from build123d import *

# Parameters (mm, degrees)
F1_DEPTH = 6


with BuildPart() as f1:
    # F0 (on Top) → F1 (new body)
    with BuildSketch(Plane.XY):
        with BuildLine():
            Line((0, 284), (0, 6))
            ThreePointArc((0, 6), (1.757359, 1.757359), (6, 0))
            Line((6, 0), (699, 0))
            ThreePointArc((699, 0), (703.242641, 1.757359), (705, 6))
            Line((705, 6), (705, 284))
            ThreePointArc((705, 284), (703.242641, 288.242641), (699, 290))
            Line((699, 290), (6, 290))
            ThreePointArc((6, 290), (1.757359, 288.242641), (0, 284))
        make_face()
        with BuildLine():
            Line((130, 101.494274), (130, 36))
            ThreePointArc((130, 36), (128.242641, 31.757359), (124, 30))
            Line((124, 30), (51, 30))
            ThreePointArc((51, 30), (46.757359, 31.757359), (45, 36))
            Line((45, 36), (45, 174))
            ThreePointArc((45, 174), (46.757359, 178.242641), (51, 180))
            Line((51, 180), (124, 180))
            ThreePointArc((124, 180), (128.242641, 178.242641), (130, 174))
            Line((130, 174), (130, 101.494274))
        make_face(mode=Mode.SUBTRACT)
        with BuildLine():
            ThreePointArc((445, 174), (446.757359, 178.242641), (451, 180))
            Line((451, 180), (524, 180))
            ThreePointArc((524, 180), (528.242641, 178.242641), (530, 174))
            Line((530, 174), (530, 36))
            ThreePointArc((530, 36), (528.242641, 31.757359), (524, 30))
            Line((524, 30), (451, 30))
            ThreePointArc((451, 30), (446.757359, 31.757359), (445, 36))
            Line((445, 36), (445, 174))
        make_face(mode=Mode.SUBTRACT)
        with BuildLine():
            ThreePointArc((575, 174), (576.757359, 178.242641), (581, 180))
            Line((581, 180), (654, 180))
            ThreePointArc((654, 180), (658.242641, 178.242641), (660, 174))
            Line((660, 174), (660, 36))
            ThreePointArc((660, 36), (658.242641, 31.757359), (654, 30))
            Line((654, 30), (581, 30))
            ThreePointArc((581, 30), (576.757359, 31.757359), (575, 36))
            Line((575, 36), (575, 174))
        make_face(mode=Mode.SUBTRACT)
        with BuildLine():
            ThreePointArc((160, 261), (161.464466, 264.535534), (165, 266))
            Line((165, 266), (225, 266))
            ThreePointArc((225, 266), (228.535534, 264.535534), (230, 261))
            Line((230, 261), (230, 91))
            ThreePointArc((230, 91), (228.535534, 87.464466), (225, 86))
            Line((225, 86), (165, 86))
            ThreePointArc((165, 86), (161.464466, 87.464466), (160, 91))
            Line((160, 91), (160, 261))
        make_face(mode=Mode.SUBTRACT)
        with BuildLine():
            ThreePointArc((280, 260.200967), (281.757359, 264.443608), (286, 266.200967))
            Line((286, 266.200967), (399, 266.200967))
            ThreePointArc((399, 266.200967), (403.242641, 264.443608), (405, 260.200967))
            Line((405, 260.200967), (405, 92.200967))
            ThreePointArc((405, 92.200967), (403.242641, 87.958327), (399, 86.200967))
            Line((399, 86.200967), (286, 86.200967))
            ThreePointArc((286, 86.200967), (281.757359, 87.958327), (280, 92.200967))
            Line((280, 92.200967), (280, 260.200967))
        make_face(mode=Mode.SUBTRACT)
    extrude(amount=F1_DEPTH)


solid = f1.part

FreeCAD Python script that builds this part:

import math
import FreeCAD as App
import Part
import Sketcher
from FreeCAD import Vector
Q = App.Units.Quantity

doc = App.newDocument("Part")
params = doc.addObject("Spreadsheet::Sheet", "Params")
for row, (alias, value) in enumerate([
    ("sketch1_radius", "5.999999 mm"),
    ("sketch1_radius2", "5 mm"),
    ("sketch1_width", "693 mm"),
    ("sketch1_width2", "73 mm"),
    ("sketch1_width3", "60 mm"),
    ("pad1_length", "6 mm"),
], start=1):
    params.set(f"A{row}", alias)
    params.set(f"B{row}", "=" + value)
    params.setAlias(f"B{row}", alias)

body = doc.addObject("PartDesign::Body", "Body")

sketch1 = doc.addObject("Sketcher::SketchObject", "Sketch")
body.addObject(sketch1)
sketch1.AttachmentSupport = (doc.XY_Plane, [""])
sketch1.MapMode = "FlatFace"
sketch1.addGeometry(Part.LineSegment(Vector(0, 284, 0), Vector(0, 6, 0)), False)
sketch1.addGeometry(Part.ArcOfCircle(Part.Circle(Vector(6, 6, 0), Vector(0, 0, 1), 6), math.radians(180), math.radians(270)), False)
sketch1.addGeometry(Part.LineSegment(Vector(6, 0, 0), Vector(699, 0, 0)), False)
sketch1.addGeometry(Part.ArcOfCircle(Part.Circle(Vector(699, 6, 0), Vector(0, 0, 1), 6), math.radians(-90), math.radians(0)), False)
sketch1.addGeometry(Part.LineSegment(Vector(705, 6, 0), Vector(705, 284, 0)), False)
sketch1.addGeometry(Part.ArcOfCircle(Part.Circle(Vector(699, 284, 0), Vector(0, 0, 1), 6), math.radians(0), math.radians(90)), False)
sketch1.addGeometry(Part.LineSegment(Vector(699, 290, 0), Vector(6, 290, 0)), False)
sketch1.addGeometry(Part.ArcOfCircle(Part.Circle(Vector(6, 284, 0), Vector(0, 0, 1), 6), math.radians(90), math.radians(180)), False)
sketch1.addGeometry(Part.LineSegment(Vector(130, 174, 0), Vector(130, 36, 0)), False)
sketch1.addGeometry(Part.ArcOfCircle(Part.Circle(Vector(124, 36, 0), Vector(0, 0, 1), 6), math.radians(-90), math.radians(0)), False)
sketch1.addGeometry(Part.LineSegment(Vector(124, 30, 0), Vector(51, 30, 0)), False)
sketch1.addGeometry(Part.ArcOfCircle(Part.Circle(Vector(51, 36, 0), Vector(0, 0, 1), 6), math.radians(180), math.radians(270)), False)
sketch1.addGeometry(Part.LineSegment(Vector(45, 36, 0), Vector(45, 174, 0)), False)
sketch1.addGeometry(Part.ArcOfCircle(Part.Circle(Vector(51, 174, 0), Vector(0, 0, 1), 6), math.radians(90), math.radians(180)), False)
sketch1.addGeometry(Part.LineSegment(Vector(51, 180, 0), Vector(124, 180, 0)), False)
sketch1.addGeometry(Part.ArcOfCircle(Part.Circle(Vector(124, 174, 0), Vector(0, 0, 1), 6), math.radians(0), math.radians(90)), False)
sketch1.addGeometry(Part.LineSegment(Vector(445, 36, 0), Vector(445, 174, 0)), False)
sketch1.addGeometry(Part.ArcOfCircle(Part.Circle(Vector(451, 174, 0), Vector(0, 0, 1), 6), math.radians(90), math.radians(180)), False)
sketch1.addGeometry(Part.LineSegment(Vector(451, 180, 0), Vector(524, 180, 0)), False)
sketch1.addGeometry(Part.ArcOfCircle(Part.Circle(Vector(524, 174, 0), Vector(0, 0, 1), 6), math.radians(0), math.radians(90)), False)
sketch1.addGeometry(Part.LineSegment(Vector(530, 174, 0), Vector(530, 36, 0)), False)
sketch1.addGeometry(Part.ArcOfCircle(Part.Circle(Vector(524, 36, 0), Vector(0, 0, 1), 6), math.radians(-90), math.radians(0)), False)
sketch1.addGeometry(Part.LineSegment(Vector(524, 30, 0), Vector(451, 30, 0)), False)
sketch1.addGeometry(Part.ArcOfCircle(Part.Circle(Vector(451, 36, 0), Vector(0, 0, 1), 6), math.radians(180), math.radians(270)), False)
sketch1.addGeometry(Part.LineSegment(Vector(575, 36, 0), Vector(575, 174, 0)), False)
sketch1.addGeometry(Part.ArcOfCircle(Part.Circle(Vector(581, 174, 0), Vector(0, 0, 1), 6), math.radians(90), math.radians(180)), False)
sketch1.addGeometry(Part.LineSegment(Vector(581, 180, 0), Vector(654, 180, 0)), False)
sketch1.addGeometry(Part.ArcOfCircle(Part.Circle(Vector(654, 174, 0), Vector(0, 0, 1), 6), math.radians(0), math.radians(90)), False)
sketch1.addGeometry(Part.LineSegment(Vector(660, 174, 0), Vector(660, 36, 0)), False)
sketch1.addGeometry(Part.ArcOfCircle(Part.Circle(Vector(654, 36, 0), Vector(0, 0, 1), 6), math.radians(-90), math.radians(0)), False)
sketch1.addGeometry(Part.LineSegment(Vector(654, 30, 0), Vector(581, 30, 0)), False)
sketch1.addGeometry(Part.ArcOfCircle(Part.Circle(Vector(581, 36, 0), Vector(0, 0, 1), 6), math.radians(180), math.radians(270)), False)
sketch1.addGeometry(Part.LineSegment(Vector(160, 91, 0), Vector(160, 261, 0)), False)
sketch1.addGeometry(Part.ArcOfCircle(Part.Circle(Vector(165, 261, 0), Vector(0, 0, 1), 5), math.radians(90), math.radians(180)), False)
sketch1.addGeometry(Part.LineSegment(Vector(165, 266, 0), Vector(225, 266, 0)), False)
sketch1.addGeometry(Part.ArcOfCircle(Part.Circle(Vector(225, 261, 0), Vector(0, 0, 1), 5), math.radians(0), math.radians(90)), False)
sketch1.addGeometry(Part.LineSegment(Vector(230, 261, 0), Vector(230, 91, 0)), False)
sketch1.addGeometry(Part.ArcOfCircle(Part.Circle(Vector(225, 91, 0), Vector(0, 0, 1), 5), math.radians(-90), math.radians(0)), False)
sketch1.addGeometry(Part.LineSegment(Vector(225, 86, 0), Vector(165, 86, 0)), False)
sketch1.addGeometry(Part.ArcOfCircle(Part.Circle(Vector(165, 91, 0), Vector(0, 0, 1), 5), math.radians(180), math.radians(270)), False)
sketch1.addGeometry(Part.LineSegment(Vector(280, 92.2, 0), Vector(280, 260.2, 0)), False)
sketch1.addGeometry(Part.ArcOfCircle(Part.Circle(Vector(286, 260.2, 0), Vector(0, 0, 1), 6), math.radians(90), math.radians(180)), False)
sketch1.addGeometry(Part.LineSegment(Vector(286, 266.2, 0), Vector(399, 266.2, 0)), False)
sketch1.addGeometry(Part.ArcOfCircle(Part.Circle(Vector(399, 260.2, 0), Vector(0, 0, 1), 6), math.radians(0), math.radians(90)), False)
sketch1.addGeometry(Part.LineSegment(Vector(405, 260.2, 0), Vector(405, 92.2, 0)), False)
sketch1.addGeometry(Part.ArcOfCircle(Part.Circle(Vector(399, 92.2, 0), Vector(0, 0, 1), 6), math.radians(-90), math.radians(0)), False)
sketch1.addGeometry(Part.LineSegment(Vector(399, 86.2, 0), Vector(286, 86.2, 0)), False)
sketch1.addGeometry(Part.ArcOfCircle(Part.Circle(Vector(286, 92.2, 0), Vector(0, 0, 1), 6), math.radians(-180), math.radians(-90)), False)
sketch1.addConstraint(Sketcher.Constraint("Tangent", 0, 2, 1, 1))
sketch1.addConstraint(Sketcher.Constraint("Tangent", 1, 2, 2, 1))
sketch1.addConstraint(Sketcher.Constraint("Tangent", 2, 2, 3, 1))
sketch1.addConstraint(Sketcher.Constraint("Tangent", 3, 2, 4, 1))
sketch1.addConstraint(Sketcher.Constraint("Tangent", 4, 2, 5, 1))
sketch1.addConstraint(Sketcher.Constraint("Tangent", 5, 2, 6, 1))
sketch1.addConstraint(Sketcher.Constraint("Tangent", 6, 2, 7, 1))
sketch1.addConstraint(Sketcher.Constraint("Tangent", 7, 2, 0, 1))
sketch1.addConstraint(Sketcher.Constraint("Tangent", 8, 2, 9, 2))
sketch1.addConstraint(Sketcher.Constraint("Tangent", 9, 1, 10, 1))
sketch1.addConstraint(Sketcher.Constraint("Tangent", 10, 2, 11, 2))
sketch1.addConstraint(Sketcher.Constraint("Tangent", 11, 1, 12, 1))
sketch1.addConstraint(Sketcher.Constraint("Tangent", 12, 2, 13, 2))
sketch1.addConstraint(Sketcher.Constraint("Tangent", 13, 1, 14, 1))
sketch1.addConstraint(Sketcher.Constraint("Tangent", 14, 2, 15, 2))
sketch1.addConstraint(Sketcher.Constraint("Tangent", 15, 1, 8, 1))
sketch1.addConstraint(Sketcher.Constraint("Tangent", 16, 2, 17, 2))
sketch1.addConstraint(Sketcher.Constraint("Tangent", 17, 1, 18, 1))
sketch1.addConstraint(Sketcher.Constraint("Tangent", 18, 2, 19, 2))
sketch1.addConstraint(Sketcher.Constraint("Tangent", 19, 1, 20, 1))
sketch1.addConstraint(Sketcher.Constraint("Tangent", 20, 2, 21, 2))
sketch1.addConstraint(Sketcher.Constraint("Tangent", 21, 1, 22, 1))
sketch1.addConstraint(Sketcher.Constraint("Tangent", 22, 2, 23, 2))
sketch1.addConstraint(Sketcher.Constraint("Tangent", 23, 1, 16, 1))
sketch1.addConstraint(Sketcher.Constraint("Tangent", 24, 2, 25, 2))
sketch1.addConstraint(Sketcher.Constraint("Tangent", 25, 1, 26, 1))
sketch1.addConstraint(Sketcher.Constraint("Tangent", 26, 2, 27, 2))
sketch1.addConstraint(Sketcher.Constraint("Tangent", 27, 1, 28, 1))
sketch1.addConstraint(Sketcher.Constraint("Tangent", 28, 2, 29, 2))
sketch1.addConstraint(Sketcher.Constraint("Tangent", 29, 1, 30, 1))
sketch1.addConstraint(Sketcher.Constraint("Tangent", 30, 2, 31, 2))
sketch1.addConstraint(Sketcher.Constraint("Tangent", 31, 1, 24, 1))
sketch1.addConstraint(Sketcher.Constraint("Tangent", 32, 2, 33, 2))
sketch1.addConstraint(Sketcher.Constraint("Tangent", 33, 1, 34, 1))
sketch1.addConstraint(Sketcher.Constraint("Tangent", 34, 2, 35, 2))
sketch1.addConstraint(Sketcher.Constraint("Tangent", 35, 1, 36, 1))
sketch1.addConstraint(Sketcher.Constraint("Tangent", 36, 2, 37, 2))
sketch1.addConstraint(Sketcher.Constraint("Tangent", 37, 1, 38, 1))
sketch1.addConstraint(Sketcher.Constraint("Tangent", 38, 2, 39, 2))
sketch1.addConstraint(Sketcher.Constraint("Tangent", 39, 1, 32, 1))
sketch1.addConstraint(Sketcher.Constraint("Tangent", 40, 2, 41, 2))
sketch1.addConstraint(Sketcher.Constraint("Tangent", 41, 1, 42, 1))
sketch1.addConstraint(Sketcher.Constraint("Tangent", 42, 2, 43, 2))
sketch1.addConstraint(Sketcher.Constraint("Tangent", 43, 1, 44, 1))
sketch1.addConstraint(Sketcher.Constraint("Tangent", 44, 2, 45, 2))
sketch1.addConstraint(Sketcher.Constraint("Tangent", 45, 1, 46, 1))
sketch1.addConstraint(Sketcher.Constraint("Tangent", 46, 2, 47, 2))
sketch1.addConstraint(Sketcher.Constraint("Tangent", 47, 1, 40, 1))
sketch1.addConstraint(Sketcher.Constraint("Vertical", 0))
sketch1.addConstraint(Sketcher.Constraint("Horizontal", 2))
sketch1.addConstraint(Sketcher.Constraint("Vertical", 4))
sketch1.addConstraint(Sketcher.Constraint("Horizontal", 6))
sketch1.addConstraint(Sketcher.Constraint("Vertical", 8))
sketch1.addConstraint(Sketcher.Constraint("Horizontal", 10))
sketch1.addConstraint(Sketcher.Constraint("Vertical", 12))
sketch1.addConstraint(Sketcher.Constraint("Horizontal", 14))
sketch1.addConstraint(Sketcher.Constraint("Vertical", 16))
sketch1.addConstraint(Sketcher.Constraint("Horizontal", 18))
sketch1.addConstraint(Sketcher.Constraint("Vertical", 20))
sketch1.addConstraint(Sketcher.Constraint("Horizontal", 22))
sketch1.addConstraint(Sketcher.Constraint("Vertical", 24))
sketch1.addConstraint(Sketcher.Constraint("Horizontal", 26))
sketch1.addConstraint(Sketcher.Constraint("Vertical", 28))
sketch1.addConstraint(Sketcher.Constraint("Horizontal", 30))
sketch1.addConstraint(Sketcher.Constraint("Vertical", 32))
sketch1.addConstraint(Sketcher.Constraint("Horizontal", 34))
sketch1.addConstraint(Sketcher.Constraint("Vertical", 36))
sketch1.addConstraint(Sketcher.Constraint("Horizontal", 38))
sketch1.addConstraint(Sketcher.Constraint("Vertical", 40))
sketch1.addConstraint(Sketcher.Constraint("Horizontal", 42))
sketch1.addConstraint(Sketcher.Constraint("Vertical", 44))
sketch1.addConstraint(Sketcher.Constraint("Horizontal", 46))
sketch1.addConstraint(Sketcher.Constraint("Equal", 1, 3))
sketch1.addConstraint(Sketcher.Constraint("Equal", 3, 5))
sketch1.addConstraint(Sketcher.Constraint("Equal", 5, 7))
sketch1.addConstraint(Sketcher.Constraint("Equal", 7, 9))
sketch1.addConstraint(Sketcher.Constraint("Equal", 9, 11))
sketch1.addConstraint(Sketcher.Constraint("Equal", 11, 13))
sketch1.addConstraint(Sketcher.Constraint("Equal", 13, 15))
sketch1.addConstraint(Sketcher.Constraint("Equal", 15, 17))
sketch1.addConstraint(Sketcher.Constraint("Equal", 17, 19))
sketch1.addConstraint(Sketcher.Constraint("Equal", 19, 21))
sketch1.addConstraint(Sketcher.Constraint("Equal", 21, 23))
sketch1.addConstraint(Sketcher.Constraint("Equal", 23, 25))
sketch1.addConstraint(Sketcher.Constraint("Equal", 25, 27))
sketch1.addConstraint(Sketcher.Constraint("Equal", 27, 29))
sketch1.addConstraint(Sketcher.Constraint("Equal", 29, 31))
sketch1.addConstraint(Sketcher.Constraint("Equal", 33, 35))
sketch1.addConstraint(Sketcher.Constraint("Equal", 35, 37))
sketch1.addConstraint(Sketcher.Constraint("Equal", 37, 39))
sketch1.addConstraint(Sketcher.Constraint("Equal", 31, 41))
sketch1.addConstraint(Sketcher.Constraint("Equal", 41, 43))
sketch1.addConstraint(Sketcher.Constraint("Equal", 43, 45))
sketch1.addConstraint(Sketcher.Constraint("Equal", 45, 47))
sketch1.addConstraint(Sketcher.Constraint("PointOnObject", 0, 2, -2))
sketch1.addConstraint(Sketcher.Constraint("PointOnObject", 1, 2, -1))
sketch1.addConstraint(Sketcher.Constraint("Horizontal", 15, 3, 17, 3))
sketch1.addConstraint(Sketcher.Constraint("Horizontal", 11, 3, 21, 3))
sketch1.addConstraint(Sketcher.Constraint("Horizontal", 19, 3, 25, 3))
sketch1.addConstraint(Sketcher.Constraint("Horizontal", 23, 3, 29, 3))
sketch1.addConstraint(Sketcher.Constraint("Equal", 14, 18))
sketch1.addConstraint(Sketcher.Constraint("Equal", 22, 26))
sketch1.addConstraint(Sketcher.Constraint("Radius", 1, Q("5.999999 mm")))
sketch1.addConstraint(Sketcher.Constraint("Radius", 33, Q("5 mm")))
sketch1.addConstraint(Sketcher.Constraint("DistanceX", 2, 1, 2, 2, Q("693 mm")))
sketch1.addConstraint(Sketcher.Constraint("DistanceX", 10, 2, 10, 1, Q("73 mm")))
sketch1.addConstraint(Sketcher.Constraint("DistanceX", 34, 1, 34, 2, Q("60 mm")))
sketch1.addConstraint(Sketcher.Constraint("DistanceX", 42, 1, 42, 2, Q("113 mm")))
sketch1.addConstraint(Sketcher.Constraint("DistanceY", 0, 2, 0, 1, Q("278 mm")))
sketch1.addConstraint(Sketcher.Constraint("DistanceY", 8, 2, 8, 1, Q("138 mm")))
sketch1.addConstraint(Sketcher.Constraint("DistanceY", 32, 1, 32, 2, Q("170 mm")))
sketch1.addConstraint(Sketcher.Constraint("DistanceY", 40, 1, 40, 2, Q("168 mm")))
sketch1.addConstraint(Sketcher.Constraint("DistanceX", -1, 1, 9, 3, Q("124.000001 mm")))
sketch1.addConstraint(Sketcher.Constraint("DistanceY", -1, 1, 9, 3, Q("35.999999 mm")))
sketch1.addConstraint(Sketcher.Constraint("DistanceX", -1, 1, 17, 3, Q("450.999999 mm")))
sketch1.addConstraint(Sketcher.Constraint("DistanceX", -1, 1, 25, 3, Q("580.999999 mm")))
sketch1.addConstraint(Sketcher.Constraint("DistanceX", -1, 1, 33, 3, Q("165 mm")))
sketch1.addConstraint(Sketcher.Constraint("DistanceY", -1, 1, 33, 3, Q("261 mm")))
sketch1.addConstraint(Sketcher.Constraint("DistanceX", -1, 1, 41, 3, Q("285.999999 mm")))
sketch1.addConstraint(Sketcher.Constraint("DistanceY", -1, 1, 41, 3, Q("260.200968 mm")))
sketch1.setExpression("Constraints[102]", "Params.sketch1_radius")
sketch1.setExpression("Constraints[103]", "Params.sketch1_radius2")
sketch1.setExpression("Constraints[104]", "Params.sketch1_width")
sketch1.setExpression("Constraints[105]", "Params.sketch1_width2")
sketch1.setExpression("Constraints[106]", "Params.sketch1_width3")
pad1 = doc.addObject("PartDesign::Pad", "Pad")
body.addObject(pad1)
pad1.Profile = sketch1
pad1.setExpression("Length", "Params.pad1_length")

doc.recompute()
